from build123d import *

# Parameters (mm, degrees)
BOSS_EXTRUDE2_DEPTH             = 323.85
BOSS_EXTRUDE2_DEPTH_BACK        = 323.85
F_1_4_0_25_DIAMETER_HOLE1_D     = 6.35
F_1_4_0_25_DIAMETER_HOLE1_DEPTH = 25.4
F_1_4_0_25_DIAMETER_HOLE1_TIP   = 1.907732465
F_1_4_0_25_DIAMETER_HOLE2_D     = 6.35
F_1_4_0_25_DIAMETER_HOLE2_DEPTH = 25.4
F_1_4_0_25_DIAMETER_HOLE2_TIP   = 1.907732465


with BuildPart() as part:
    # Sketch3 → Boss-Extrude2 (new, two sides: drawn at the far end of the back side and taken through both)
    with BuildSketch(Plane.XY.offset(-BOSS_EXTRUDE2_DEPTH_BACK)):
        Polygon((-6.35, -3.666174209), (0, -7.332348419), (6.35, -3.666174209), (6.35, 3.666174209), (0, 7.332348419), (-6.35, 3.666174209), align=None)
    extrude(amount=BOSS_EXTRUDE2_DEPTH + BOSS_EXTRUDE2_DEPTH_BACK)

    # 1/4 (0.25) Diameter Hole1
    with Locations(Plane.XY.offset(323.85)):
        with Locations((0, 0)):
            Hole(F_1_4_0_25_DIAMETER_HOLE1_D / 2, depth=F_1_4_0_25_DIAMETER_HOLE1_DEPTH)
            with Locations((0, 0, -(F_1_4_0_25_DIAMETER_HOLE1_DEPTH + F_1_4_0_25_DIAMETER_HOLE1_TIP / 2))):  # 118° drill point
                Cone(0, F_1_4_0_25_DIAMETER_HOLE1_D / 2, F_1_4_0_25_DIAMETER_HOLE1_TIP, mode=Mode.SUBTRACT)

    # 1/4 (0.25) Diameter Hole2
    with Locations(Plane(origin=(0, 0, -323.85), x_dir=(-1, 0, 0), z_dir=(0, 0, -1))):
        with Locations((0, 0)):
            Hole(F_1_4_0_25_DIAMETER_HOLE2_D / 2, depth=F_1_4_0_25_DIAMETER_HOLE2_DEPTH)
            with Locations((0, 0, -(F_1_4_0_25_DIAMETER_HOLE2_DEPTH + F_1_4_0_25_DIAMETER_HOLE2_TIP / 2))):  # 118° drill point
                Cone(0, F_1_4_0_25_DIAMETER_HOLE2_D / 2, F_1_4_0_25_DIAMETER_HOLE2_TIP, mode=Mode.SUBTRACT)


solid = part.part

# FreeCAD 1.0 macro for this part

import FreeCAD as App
import Part
import Sketcher
from FreeCAD import Vector
Q = App.Units.Quantity


def add_polygon(sketch, points):
    """Adds a closed chain of lines whose ends are joined by coincident constraints."""
    first, n = sketch.GeometryCount, len(points)
    for a, b in zip(points, points[1:] + points[:1]):
        sketch.addGeometry(Part.LineSegment(App.Vector(*a, 0), App.Vector(*b, 0)), False)
    for i in range(n):
        sketch.addConstraint(Sketcher.Constraint("Coincident", first + i, 2, first + (i + 1) % n, 1))

doc = App.newDocument("Part")
params = doc.addObject("Spreadsheet::Sheet", "Params")
for row, (alias, value) in enumerate([
    ("pad1_length", "12.75 in"),
    ("pad1_length2", "12.75 in"),
    ("sketch2_diameter", "0.25 in"),
    ("hole_diameter", "0.25 in"),
    ("hole_depth", "1 in"),
    ("sketch3_diameter", "0.25 in"),
    ("hole2_diameter", "0.25 in"),
    ("hole2_depth", "1 in"),
], start=1):
    params.set(f"A{row}", alias)
    params.set(f"B{row}", "=" + value)
    params.setAlias(f"B{row}", alias)

body = doc.addObject("PartDesign::Body", "Body")

sketch1 = doc.addObject("Sketcher::SketchObject", "Sketch")
body.addObject(sketch1)
sketch1.AttachmentSupport = (doc.XY_Plane, [""])
sketch1.MapMode = "FlatFace"
add_polygon(sketch1, [(-6.35, -3.666174), (0, -7.332348), (6.35, -3.666174), (6.35, 3.666174), (0, 7.332348), (-6.35, 3.666174)])
sketch1.addConstraint([
    Sketcher.Constraint("Vertical", 2),
    Sketcher.Constraint("Vertical", 5),
    Sketcher.Constraint("Symmetric", 0, 2, 3, 2, -1, 1),
    Sketcher.Constraint("Symmetric", 1, 2, 4, 2, -1, 1),
    Sketcher.Constraint("PointOnObject", 0, 2, -2),
    Sketcher.Constraint("Parallel", 0, 3),
    Sketcher.Constraint("Horizontal", 2, 2, 4, 2),
    Sketcher.Constraint("Angle", 0, Q("-30 deg")),
    Sketcher.Constraint("DistanceX", 4, 2, 2, 2, Q("0.5 in")),
    Sketcher.Constraint("DistanceY", 2, 1, 2, 2, Q("7.332348 mm")),
])
pad1 = doc.addObject("PartDesign::Pad", "Pad")
body.addObject(pad1)
pad1.Profile = sketch1
pad1.Type = "TwoLengths"
pad1.setExpression("Length", "Params.pad1_length")
pad1.setExpression("Length2", "Params.pad1_length2")

sketch2 = doc.addObject("Sketcher::SketchObject", "Sketch001")
body.addObject(sketch2)
sketch2.AttachmentSupport = (doc.XY_Plane, [""])
sketch2.MapMode = "FlatFace"
sketch2.AttachmentOffset = App.Placement(Vector(0, 0, 12.75 * 25.4), App.Rotation())
sketch2.addGeometry(Part.Circle(Vector(0, 0, 0), Vector(0, 0, 1), 3.175), False)
sketch2.addConstraint([
    Sketcher.Constraint("Coincident", 0, 3, -1, 1),
    Sketcher.Constraint("Diameter", 0, Q("0.25 in")),
])
sketch2.setExpression("Constraints[1]", "Params.sketch2_diameter")
doc.recompute()
hole = doc.addObject("PartDesign::Hole", "Hole")
body.addObject(hole)
hole.Profile = sketch2
hole.ThreadType = "None"
hole.setExpression("Diameter", "Params.hole_diameter")
hole.DepthType = "Dimension"
hole.setExpression("Depth", "Params.hole_depth")
hole.DrillPoint = "Angled"
hole.DrillPointAngle = 118

sketch3 = doc.addObject("Sketcher::SketchObject", "Sketch002")
body.addObject(sketch3)
sketch3.AttachmentSupport = (doc.XY_Plane, [""])
sketch3.MapMode = "FlatFace"
sketch3.AttachmentOffset = App.Placement(Vector(0, 0, -12.75 * 25.4), App.Rotation())
sketch3.addGeometry(Part.Circle(Vector(0, 0, 0), Vector(0, 0, 1), 3.175), False)
sketch3.addConstraint([
    Sketcher.Constraint("Coincident", 0, 3, -1, 1),
    Sketcher.Constraint("Diameter", 0, Q("0.25 in")),
])
sketch3.setExpression("Constraints[1]", "Params.sketch3_diameter")
doc.recompute()
hole2 = doc.addObject("PartDesign::Hole", "Hole001")
body.addObject(hole2)
hole2.Profile = sketch3
hole2.ThreadType = "None"
hole2.setExpression("Diameter", "Params.hole2_diameter")
hole2.DepthType = "Dimension"
hole2.setExpression("Depth", "Params.hole2_depth")
hole2.DrillPoint = "Angled"
hole2.DrillPointAngle = 118
hole2.Reversed = True

doc.recompute()
